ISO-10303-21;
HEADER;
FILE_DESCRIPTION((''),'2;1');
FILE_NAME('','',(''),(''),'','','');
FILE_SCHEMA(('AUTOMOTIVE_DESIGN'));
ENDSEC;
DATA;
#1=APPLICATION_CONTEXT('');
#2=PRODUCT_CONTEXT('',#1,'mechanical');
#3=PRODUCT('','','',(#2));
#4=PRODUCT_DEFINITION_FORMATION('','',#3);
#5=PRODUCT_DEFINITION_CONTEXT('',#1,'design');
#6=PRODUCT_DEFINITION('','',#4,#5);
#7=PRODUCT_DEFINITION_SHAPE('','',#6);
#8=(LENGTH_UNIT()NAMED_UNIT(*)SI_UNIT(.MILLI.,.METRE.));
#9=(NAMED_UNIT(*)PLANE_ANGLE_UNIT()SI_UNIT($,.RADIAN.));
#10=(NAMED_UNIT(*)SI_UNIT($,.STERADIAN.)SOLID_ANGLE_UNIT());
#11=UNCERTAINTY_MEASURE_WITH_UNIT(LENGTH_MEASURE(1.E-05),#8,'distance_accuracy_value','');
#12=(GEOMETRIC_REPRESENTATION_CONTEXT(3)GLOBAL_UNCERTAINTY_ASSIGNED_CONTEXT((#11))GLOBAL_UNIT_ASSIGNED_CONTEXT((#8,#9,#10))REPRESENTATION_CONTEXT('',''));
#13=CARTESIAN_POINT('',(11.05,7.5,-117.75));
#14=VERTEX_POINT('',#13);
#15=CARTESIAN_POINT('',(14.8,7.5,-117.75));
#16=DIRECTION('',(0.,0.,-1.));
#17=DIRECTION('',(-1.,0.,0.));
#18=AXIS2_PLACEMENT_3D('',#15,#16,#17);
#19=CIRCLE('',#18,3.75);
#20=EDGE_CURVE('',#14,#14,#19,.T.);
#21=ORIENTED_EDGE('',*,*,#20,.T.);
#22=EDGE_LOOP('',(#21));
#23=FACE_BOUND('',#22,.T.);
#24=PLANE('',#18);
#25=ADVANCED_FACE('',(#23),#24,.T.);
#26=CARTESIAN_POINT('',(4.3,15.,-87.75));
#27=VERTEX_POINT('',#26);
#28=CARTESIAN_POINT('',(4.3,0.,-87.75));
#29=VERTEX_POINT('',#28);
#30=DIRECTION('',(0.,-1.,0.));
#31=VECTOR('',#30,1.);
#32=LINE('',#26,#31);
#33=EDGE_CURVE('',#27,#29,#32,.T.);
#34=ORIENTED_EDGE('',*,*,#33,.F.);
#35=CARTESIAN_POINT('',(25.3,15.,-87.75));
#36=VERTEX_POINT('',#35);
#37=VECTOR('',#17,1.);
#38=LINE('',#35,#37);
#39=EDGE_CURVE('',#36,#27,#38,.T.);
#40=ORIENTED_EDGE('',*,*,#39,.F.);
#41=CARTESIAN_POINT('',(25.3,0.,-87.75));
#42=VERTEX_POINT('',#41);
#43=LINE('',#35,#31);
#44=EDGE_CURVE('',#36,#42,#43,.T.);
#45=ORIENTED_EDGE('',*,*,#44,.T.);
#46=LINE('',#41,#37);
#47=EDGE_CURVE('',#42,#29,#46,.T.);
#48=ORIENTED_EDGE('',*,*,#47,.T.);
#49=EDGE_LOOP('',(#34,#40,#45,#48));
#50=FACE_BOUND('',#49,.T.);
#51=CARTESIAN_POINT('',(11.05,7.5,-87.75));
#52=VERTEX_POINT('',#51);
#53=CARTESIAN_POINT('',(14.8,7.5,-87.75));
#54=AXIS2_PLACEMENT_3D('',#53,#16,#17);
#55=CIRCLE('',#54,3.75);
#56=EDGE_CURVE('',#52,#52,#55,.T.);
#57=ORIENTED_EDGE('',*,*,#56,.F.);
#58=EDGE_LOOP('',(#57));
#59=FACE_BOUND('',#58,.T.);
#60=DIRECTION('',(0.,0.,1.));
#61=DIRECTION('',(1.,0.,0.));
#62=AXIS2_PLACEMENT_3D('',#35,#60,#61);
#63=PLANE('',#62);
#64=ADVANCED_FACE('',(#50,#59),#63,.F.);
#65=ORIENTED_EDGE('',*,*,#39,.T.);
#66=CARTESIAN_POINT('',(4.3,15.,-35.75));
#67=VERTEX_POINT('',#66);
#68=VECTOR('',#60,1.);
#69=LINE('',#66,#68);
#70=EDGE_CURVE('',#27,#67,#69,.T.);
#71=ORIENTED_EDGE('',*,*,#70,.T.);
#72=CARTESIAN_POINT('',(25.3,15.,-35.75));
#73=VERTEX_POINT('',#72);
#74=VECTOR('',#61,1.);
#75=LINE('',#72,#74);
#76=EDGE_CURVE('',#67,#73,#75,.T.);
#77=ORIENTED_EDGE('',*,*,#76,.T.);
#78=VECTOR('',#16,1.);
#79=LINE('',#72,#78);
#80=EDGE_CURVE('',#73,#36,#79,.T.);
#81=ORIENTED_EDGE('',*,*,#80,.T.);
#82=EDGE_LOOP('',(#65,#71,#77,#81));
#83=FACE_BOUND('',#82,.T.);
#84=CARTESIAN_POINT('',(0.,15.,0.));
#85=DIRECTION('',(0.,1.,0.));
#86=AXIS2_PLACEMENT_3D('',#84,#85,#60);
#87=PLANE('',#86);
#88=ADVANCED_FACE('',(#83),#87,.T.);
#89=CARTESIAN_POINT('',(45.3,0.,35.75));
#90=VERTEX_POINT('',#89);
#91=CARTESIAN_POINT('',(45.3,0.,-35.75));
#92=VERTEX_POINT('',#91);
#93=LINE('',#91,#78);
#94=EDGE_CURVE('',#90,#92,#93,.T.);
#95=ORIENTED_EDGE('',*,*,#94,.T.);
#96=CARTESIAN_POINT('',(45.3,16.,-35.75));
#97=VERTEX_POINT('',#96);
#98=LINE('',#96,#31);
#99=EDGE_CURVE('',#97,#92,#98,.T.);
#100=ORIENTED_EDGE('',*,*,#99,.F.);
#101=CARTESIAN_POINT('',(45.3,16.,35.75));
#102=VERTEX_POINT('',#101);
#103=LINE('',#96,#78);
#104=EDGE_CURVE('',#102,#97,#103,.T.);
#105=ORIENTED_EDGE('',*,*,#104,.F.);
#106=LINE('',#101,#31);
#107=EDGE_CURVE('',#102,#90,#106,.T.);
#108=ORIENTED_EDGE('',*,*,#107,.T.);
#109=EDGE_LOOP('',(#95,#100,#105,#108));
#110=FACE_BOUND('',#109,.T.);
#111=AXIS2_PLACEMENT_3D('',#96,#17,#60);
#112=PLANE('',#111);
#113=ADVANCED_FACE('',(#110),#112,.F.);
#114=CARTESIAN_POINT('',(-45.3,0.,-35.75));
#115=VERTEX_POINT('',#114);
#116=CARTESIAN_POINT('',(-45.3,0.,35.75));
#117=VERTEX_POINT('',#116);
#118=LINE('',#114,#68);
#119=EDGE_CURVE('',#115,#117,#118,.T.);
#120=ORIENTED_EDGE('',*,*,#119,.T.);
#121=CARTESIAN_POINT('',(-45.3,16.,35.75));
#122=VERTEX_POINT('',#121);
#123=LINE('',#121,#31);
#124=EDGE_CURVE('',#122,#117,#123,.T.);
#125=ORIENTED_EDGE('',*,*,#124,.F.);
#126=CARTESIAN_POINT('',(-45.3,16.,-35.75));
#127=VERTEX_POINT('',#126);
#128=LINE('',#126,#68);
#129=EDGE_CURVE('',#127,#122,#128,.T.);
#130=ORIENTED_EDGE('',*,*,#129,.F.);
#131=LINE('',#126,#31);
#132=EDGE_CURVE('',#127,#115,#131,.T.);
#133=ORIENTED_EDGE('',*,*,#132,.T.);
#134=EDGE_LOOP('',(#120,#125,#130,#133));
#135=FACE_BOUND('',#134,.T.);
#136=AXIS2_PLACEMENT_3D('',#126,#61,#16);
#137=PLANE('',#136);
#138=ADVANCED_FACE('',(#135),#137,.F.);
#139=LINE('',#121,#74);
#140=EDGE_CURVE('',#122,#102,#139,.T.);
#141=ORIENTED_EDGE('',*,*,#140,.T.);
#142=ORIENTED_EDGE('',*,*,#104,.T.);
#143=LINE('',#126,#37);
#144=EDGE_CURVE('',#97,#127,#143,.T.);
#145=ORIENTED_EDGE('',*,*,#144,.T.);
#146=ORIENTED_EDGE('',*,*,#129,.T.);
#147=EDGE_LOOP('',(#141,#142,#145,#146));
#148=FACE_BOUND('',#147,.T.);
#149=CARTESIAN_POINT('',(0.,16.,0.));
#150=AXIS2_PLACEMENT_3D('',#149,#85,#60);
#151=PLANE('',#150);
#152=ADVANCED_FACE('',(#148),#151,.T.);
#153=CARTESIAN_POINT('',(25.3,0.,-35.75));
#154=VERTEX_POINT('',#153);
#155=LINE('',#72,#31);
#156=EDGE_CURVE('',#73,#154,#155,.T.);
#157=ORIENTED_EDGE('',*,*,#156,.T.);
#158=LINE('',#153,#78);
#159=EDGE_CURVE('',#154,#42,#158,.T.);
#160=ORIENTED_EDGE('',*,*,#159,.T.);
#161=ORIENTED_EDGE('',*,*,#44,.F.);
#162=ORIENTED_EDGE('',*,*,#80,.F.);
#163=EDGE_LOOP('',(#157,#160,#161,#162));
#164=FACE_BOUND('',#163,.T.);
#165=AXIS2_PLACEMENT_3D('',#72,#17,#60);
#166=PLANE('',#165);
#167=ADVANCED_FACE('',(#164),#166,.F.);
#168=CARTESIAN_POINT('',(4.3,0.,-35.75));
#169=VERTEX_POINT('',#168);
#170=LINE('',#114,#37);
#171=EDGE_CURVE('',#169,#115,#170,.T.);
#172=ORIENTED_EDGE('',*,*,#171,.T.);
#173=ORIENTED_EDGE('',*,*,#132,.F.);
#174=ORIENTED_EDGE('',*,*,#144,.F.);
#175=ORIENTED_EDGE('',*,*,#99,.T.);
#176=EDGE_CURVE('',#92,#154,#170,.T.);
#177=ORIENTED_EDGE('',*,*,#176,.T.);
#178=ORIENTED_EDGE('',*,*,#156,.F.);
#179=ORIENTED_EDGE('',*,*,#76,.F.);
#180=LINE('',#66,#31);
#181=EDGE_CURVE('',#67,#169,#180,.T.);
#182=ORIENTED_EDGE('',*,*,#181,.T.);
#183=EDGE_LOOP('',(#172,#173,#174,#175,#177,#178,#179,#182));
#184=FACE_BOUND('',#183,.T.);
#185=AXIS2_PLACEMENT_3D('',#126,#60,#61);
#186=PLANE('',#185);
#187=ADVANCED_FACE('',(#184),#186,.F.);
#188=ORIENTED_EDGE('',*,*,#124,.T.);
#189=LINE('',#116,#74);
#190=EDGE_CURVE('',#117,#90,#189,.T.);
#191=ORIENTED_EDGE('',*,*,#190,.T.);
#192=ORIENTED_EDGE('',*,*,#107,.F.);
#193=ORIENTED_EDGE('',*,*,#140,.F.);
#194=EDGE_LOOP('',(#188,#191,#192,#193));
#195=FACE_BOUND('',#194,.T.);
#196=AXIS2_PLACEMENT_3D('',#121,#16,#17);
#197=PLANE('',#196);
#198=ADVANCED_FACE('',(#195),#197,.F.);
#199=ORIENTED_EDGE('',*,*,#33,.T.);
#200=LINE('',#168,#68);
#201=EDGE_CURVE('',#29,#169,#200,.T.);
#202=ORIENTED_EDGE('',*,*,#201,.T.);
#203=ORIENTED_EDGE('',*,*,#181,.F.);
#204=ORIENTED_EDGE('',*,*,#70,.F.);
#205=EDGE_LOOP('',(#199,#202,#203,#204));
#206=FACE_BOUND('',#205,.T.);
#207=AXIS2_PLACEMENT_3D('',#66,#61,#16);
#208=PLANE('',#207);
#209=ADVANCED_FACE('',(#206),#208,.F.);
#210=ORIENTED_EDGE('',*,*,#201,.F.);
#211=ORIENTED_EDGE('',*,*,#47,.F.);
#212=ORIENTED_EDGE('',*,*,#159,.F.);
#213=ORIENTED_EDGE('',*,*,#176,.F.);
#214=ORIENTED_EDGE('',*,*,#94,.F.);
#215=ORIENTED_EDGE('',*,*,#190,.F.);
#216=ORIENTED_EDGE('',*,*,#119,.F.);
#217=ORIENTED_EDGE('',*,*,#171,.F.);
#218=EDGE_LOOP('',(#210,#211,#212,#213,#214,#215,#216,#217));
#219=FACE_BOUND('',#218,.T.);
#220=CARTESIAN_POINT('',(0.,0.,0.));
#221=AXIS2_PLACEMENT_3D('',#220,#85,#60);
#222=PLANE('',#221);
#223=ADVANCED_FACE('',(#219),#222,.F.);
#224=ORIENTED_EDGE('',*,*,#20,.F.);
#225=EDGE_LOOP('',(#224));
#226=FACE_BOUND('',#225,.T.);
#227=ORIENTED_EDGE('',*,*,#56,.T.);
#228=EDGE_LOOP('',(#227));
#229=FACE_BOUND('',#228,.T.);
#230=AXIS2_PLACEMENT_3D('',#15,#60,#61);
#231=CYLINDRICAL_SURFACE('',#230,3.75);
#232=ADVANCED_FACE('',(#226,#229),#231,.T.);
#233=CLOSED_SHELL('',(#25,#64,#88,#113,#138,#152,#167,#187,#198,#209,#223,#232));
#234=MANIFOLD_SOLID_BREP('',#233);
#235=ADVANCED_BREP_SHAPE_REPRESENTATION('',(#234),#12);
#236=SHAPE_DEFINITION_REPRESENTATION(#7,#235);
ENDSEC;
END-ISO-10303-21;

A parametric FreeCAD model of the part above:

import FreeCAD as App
import Part
import Sketcher
from FreeCAD import Vector
Q = App.Units.Quantity

doc = App.newDocument("Part")
params = doc.addObject("Spreadsheet::Sheet", "Params")
for row, (alias, value) in enumerate([
    ("sketch1_width", "90.6 mm"),
    ("sketch1_height", "71.5 mm"),
    ("pad1_length", "16 mm"),
    ("sketch2_width", "21 mm"),
    ("sketch2_height", "52 mm"),
    ("pad2_length", "15 mm"),
    ("sketch3_diameter", "7.5 mm"),
    ("pad3_length", "30 mm"),
], start=1):
    params.set(f"A{row}", alias)
    params.set(f"B{row}", "=" + value)
    params.setAlias(f"B{row}", alias)

body = doc.addObject("PartDesign::Body", "Body")

# Sketch on XZ plane
sketch1 = doc.addObject("Sketcher::SketchObject", "Sketch")
body.addObject(sketch1)
sketch1.AttachmentSupport = (doc.XZ_Plane, [""])
sketch1.MapMode = "FlatFace"
sketch1.addGeometry(Part.LineSegment(Vector(-45, -36, 0), Vector(-45, 36, 0)), False)
sketch1.addGeometry(Part.LineSegment(Vector(-45, 36, 0), Vector(45, 36, 0)), False)
sketch1.addGeometry(Part.LineSegment(Vector(45, 36, 0), Vector(45, -36, 0)), False)
sketch1.addGeometry(Part.LineSegment(Vector(45, -36, 0), Vector(-45, -36, 0)), False)
sketch1.addConstraint(Sketcher.Constraint("Coincident", 0, 2, 1, 1))
sketch1.addConstraint(Sketcher.Constraint("Coincident", 1, 2, 2, 1))
sketch1.addConstraint(Sketcher.Constraint("Coincident", 2, 2, 3, 1))
sketch1.addConstraint(Sketcher.Constraint("Coincident", 3, 2, 0, 1))
sketch1.addConstraint(Sketcher.Constraint("Vertical", 0))
sketch1.addConstraint(Sketcher.Constraint("Horizontal", 1))
sketch1.addConstraint(Sketcher.Constraint("Vertical", 2))
sketch1.addConstraint(Sketcher.Constraint("Horizontal", 3))
sketch1.addConstraint(Sketcher.Constraint("Symmetric", 0, 2, 2, 2, -1, 1))
sketch1.addConstraint(Sketcher.Constraint("DistanceX", 1, 1, 1, 2, Q("90.6 mm")))
sketch1.addConstraint(Sketcher.Constraint("DistanceY", 0, 1, 0, 2, Q("71.5 mm")))
sketch1.setExpression("Constraints[9]", "Params.sketch1_width")
sketch1.setExpression("Constraints[10]", "Params.sketch1_height")
pad1 = doc.addObject("PartDesign::Pad", "Pad")
body.addObject(pad1)
pad1.Profile = sketch1
pad1.setExpression("Length", "Params.pad1_length")
pad1.Reversed = True

# Sketch on XZ plane
sketch2 = doc.addObject("Sketcher::SketchObject", "Sketch001")
body.addObject(sketch2)
sketch2.AttachmentSupport = (doc.XZ_Plane, [""])
sketch2.MapMode = "FlatFace"
sketch2.addGeometry(Part.LineSegment(Vector(4, -88, 0), Vector(4, -36, 0)), False)
sketch2.addGeometry(Part.LineSegment(Vector(4, -36, 0), Vector(25, -36, 0)), False)
sketch2.addGeometry(Part.LineSegment(Vector(25, -36, 0), Vector(25, -88, 0)), False)
sketch2.addGeometry(Part.LineSegment(Vector(25, -88, 0), Vector(4, -88, 0)), False)
sketch2.addConstraint(Sketcher.Constraint("Coincident", 0, 2, 1, 1))
sketch2.addConstraint(Sketcher.Constraint("Coincident", 1, 2, 2, 1))
sketch2.addConstraint(Sketcher.Constraint("Coincident", 2, 2, 3, 1))
sketch2.addConstraint(Sketcher.Constraint("Coincident", 3, 2, 0, 1))
sketch2.addConstraint(Sketcher.Constraint("Vertical", 0))
sketch2.addConstraint(Sketcher.Constraint("Horizontal", 1))
sketch2.addConstraint(Sketcher.Constraint("Vertical", 2))
sketch2.addConstraint(Sketcher.Constraint("Horizontal", 3))
sketch2.addConstraint(Sketcher.Constraint("DistanceX", 1, 1, 1, 2, Q("21 mm")))
sketch2.addConstraint(Sketcher.Constraint("DistanceY", 0, 1, 0, 2, Q("52 mm")))
sketch2.addConstraint(Sketcher.Constraint("DistanceX", -1, 1, 0, 2, Q("4.3 mm")))
sketch2.addConstraint(Sketcher.Constraint("DistanceY", 0, 2, -1, 1, Q("35.75 mm")))
sketch2.setExpression("Constraints[8]", "Params.sketch2_width")
sketch2.setExpression("Constraints[9]", "Params.sketch2_height")
pad2 = doc.addObject("PartDesign::Pad", "Pad001")
body.addObject(pad2)
pad2.Profile = sketch2
pad2.setExpression("Length", "Params.pad2_length")
pad2.Reversed = True

# Sketch on XY plane
sketch3 = doc.addObject("Sketcher::SketchObject", "Sketch002")
body.addObject(sketch3)
sketch3.AttachmentSupport = (doc.XY_Plane, [""])
sketch3.MapMode = "FlatFace"
sketch3.AttachmentOffset = App.Placement(Vector(0, 0, -87.75), App.Rotation())
sketch3.addGeometry(Part.Circle(Vector(14.8, 7.5, 0), Vector(0, 0, 1), 3.8), False)
sketch3.addConstraint(Sketcher.Constraint("Diameter", 0, Q("7.5 mm")))
sketch3.addConstraint(Sketcher.Constraint("DistanceX", -1, 1, 0, 3, Q("14.8 mm")))
sketch3.addConstraint(Sketcher.Constraint("DistanceY", -1, 1, 0, 3, Q("7.5 mm")))
sketch3.setExpression("Constraints[0]", "Params.sketch3_diameter")
pad3 = doc.addObject("PartDesign::Pad", "Pad002")
body.addObject(pad3)
pad3.Profile = sketch3
pad3.setExpression("Length", "Params.pad3_length")
pad3.Reversed = True

doc.recompute()
